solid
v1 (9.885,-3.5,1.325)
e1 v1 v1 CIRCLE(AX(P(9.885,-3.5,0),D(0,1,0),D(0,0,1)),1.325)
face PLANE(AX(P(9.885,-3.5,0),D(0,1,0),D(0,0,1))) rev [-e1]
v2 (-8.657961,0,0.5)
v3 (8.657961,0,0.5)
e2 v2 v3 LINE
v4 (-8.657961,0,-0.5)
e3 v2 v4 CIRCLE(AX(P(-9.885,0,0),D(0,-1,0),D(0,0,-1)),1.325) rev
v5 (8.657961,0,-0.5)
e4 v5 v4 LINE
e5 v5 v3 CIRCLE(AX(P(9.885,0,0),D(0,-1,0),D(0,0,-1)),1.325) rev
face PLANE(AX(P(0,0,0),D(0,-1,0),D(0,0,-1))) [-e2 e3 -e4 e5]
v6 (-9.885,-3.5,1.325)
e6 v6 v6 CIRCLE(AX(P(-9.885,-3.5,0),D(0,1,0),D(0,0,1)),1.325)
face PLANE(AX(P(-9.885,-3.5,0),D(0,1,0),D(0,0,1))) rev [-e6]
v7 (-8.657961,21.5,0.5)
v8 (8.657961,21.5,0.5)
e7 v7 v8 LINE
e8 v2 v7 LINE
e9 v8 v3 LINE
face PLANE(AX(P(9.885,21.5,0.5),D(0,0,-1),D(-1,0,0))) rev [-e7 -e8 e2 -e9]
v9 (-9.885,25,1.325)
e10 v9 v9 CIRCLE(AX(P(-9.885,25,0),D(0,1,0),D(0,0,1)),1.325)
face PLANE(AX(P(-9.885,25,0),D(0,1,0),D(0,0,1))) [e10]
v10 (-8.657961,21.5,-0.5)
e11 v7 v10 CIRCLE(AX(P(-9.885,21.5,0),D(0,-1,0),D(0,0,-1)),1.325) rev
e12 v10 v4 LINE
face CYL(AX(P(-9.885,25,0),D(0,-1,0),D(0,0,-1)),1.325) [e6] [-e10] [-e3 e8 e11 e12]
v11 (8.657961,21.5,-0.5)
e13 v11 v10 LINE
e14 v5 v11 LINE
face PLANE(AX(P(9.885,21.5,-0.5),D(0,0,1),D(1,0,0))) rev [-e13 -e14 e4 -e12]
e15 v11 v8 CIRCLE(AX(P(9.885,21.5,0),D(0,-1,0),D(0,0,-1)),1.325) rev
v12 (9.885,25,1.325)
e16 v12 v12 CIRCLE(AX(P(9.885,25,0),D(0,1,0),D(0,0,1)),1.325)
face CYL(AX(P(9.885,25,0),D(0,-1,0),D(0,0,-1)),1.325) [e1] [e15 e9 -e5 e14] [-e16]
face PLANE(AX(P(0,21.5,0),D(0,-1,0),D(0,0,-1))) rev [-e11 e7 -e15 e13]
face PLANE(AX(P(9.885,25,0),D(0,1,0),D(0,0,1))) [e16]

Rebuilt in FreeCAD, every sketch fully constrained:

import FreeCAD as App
import Part
import Sketcher

V = App.Vector
Q = App.Units.Quantity

doc = App.newDocument("Part")
body = doc.addObject("PartDesign::Body", "Body")

# Sketch on XZ plane
sketch1 = doc.addObject("Sketcher::SketchObject", "Sketch")
body.addObject(sketch1)
sketch1.AttachmentSupport = (doc.XZ_Plane, [""])
sketch1.MapMode = "FlatFace"
sketch1.addGeometry([
    Part.LineSegment(V(-9.9, -0.5, 0), V(-9.9, 0.5, 0)),
    Part.LineSegment(V(-9.9, 0.5, 0), V(9.9, 0.5, 0)),
    Part.LineSegment(V(9.9, 0.5, 0), V(9.9, -0.5, 0)),
    Part.LineSegment(V(9.9, -0.5, 0), V(-9.9, -0.5, 0)),
], False)
sketch1.addConstraint([
    Sketcher.Constraint("Coincident", 0, 2, 1, 1),
    Sketcher.Constraint("Coincident", 1, 2, 2, 1),
    Sketcher.Constraint("Coincident", 2, 2, 3, 1),
    Sketcher.Constraint("Coincident", 3, 2, 0, 1),
    Sketcher.Constraint("Vertical", 0),
    Sketcher.Constraint("Horizontal", 1),
    Sketcher.Constraint("Vertical", 2),
    Sketcher.Constraint("Horizontal", 3),
    Sketcher.Constraint("Symmetric", 0, 2, 2, 2, -1, 1),
    Sketcher.Constraint("DistanceY", 0, 1, 0, 2, Q("1 mm")),
    Sketcher.Constraint("DistanceX", 1, 1, 1, 2, Q("19.77 mm")),
])
pad1 = doc.addObject("PartDesign::Pad", "Pad")
body.addObject(pad1)
pad1.Profile = sketch1
pad1.Length = 21.5
pad1.Reversed = True

# Sketch on XZ plane
sketch2 = doc.addObject("Sketcher::SketchObject", "Sketch001")
body.addObject(sketch2)
sketch2.AttachmentSupport = (doc.XZ_Plane, [""])
sketch2.MapMode = "FlatFace"
sketch2.AttachmentOffset = App.Placement(V(0, 0, -10.75), App.Rotation())
sketch2.addGeometry([
    Part.Circle(V(-9.9, 0, 0), V(0, 0, 1), 1.3),
    Part.Circle(V(9.9, 0, 0), V(0, 0, 1), 1.3),
], False)
sketch2.addConstraint([
    Sketcher.Constraint("Equal", 0, 1),
    Sketcher.Constraint("Symmetric", 0, 3, 1, 3, -1, 1),
    Sketcher.Constraint("PointOnObject", 0, 3, -1),
    Sketcher.Constraint("Diameter", 0, Q("2.65 mm")),
    Sketcher.Constraint("DistanceX", 0, 3, 1, 3, Q("19.77 mm")),
])
pad2 = doc.addObject("PartDesign::Pad", "Pad001")
body.addObject(pad2)
pad2.Profile = sketch2
pad2.Length = 28.5
pad2.Midplane = True

doc.recompute()
